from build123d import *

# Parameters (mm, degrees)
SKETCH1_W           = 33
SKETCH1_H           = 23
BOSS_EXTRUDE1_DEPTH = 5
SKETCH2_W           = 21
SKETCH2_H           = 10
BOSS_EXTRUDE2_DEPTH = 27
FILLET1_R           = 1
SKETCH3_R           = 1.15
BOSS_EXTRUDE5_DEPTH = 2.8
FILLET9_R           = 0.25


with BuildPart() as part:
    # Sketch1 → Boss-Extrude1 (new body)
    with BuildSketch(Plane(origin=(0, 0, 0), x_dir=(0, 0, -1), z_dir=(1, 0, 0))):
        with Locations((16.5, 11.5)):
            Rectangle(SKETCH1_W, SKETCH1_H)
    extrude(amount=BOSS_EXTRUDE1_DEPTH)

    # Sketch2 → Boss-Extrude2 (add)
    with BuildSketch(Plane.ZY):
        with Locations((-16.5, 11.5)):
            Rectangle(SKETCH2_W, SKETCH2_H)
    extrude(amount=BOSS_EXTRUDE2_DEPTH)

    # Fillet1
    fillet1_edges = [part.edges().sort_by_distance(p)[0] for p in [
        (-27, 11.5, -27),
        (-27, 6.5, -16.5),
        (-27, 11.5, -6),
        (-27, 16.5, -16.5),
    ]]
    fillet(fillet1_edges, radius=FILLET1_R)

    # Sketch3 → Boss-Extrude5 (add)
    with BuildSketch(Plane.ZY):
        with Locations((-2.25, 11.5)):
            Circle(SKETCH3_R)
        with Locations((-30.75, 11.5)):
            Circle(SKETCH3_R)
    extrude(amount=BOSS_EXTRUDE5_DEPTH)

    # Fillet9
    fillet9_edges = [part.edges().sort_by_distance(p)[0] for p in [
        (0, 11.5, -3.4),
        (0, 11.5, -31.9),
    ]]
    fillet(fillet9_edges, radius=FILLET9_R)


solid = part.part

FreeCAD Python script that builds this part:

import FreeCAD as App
import Part
import Sketcher

V = App.Vector
Q = App.Units.Quantity


def edges_at(feature, points):
    """Names of the edges that pass closest to the given points."""
    edges = feature.Shape.Edges
    near = lambda p: min(range(len(edges)), key=lambda i: edges[i].distToShape(Part.Vertex(*p))[0])
    return sorted({f"Edge{near(p) + 1}" for p in points})

doc = App.newDocument("Part")
body = doc.addObject("PartDesign::Body", "Body")

# Sketch on YZ plane
sketch1 = body.newObject("Sketcher::SketchObject", "Sketch")
sketch1.AttachmentSupport = (doc.getObject("YZ_Plane"), [""])
sketch1.MapMode = "FlatFace"
sketch1.addGeometry([
    Part.LineSegment(V(23, 0, 0), V(0, 0, 0)),
    Part.LineSegment(V(0, 0, 0), V(0, -33, 0)),
    Part.LineSegment(V(0, -33, 0), V(23, -33, 0)),
    Part.LineSegment(V(23, -33, 0), V(23, 0, 0)),
], False)
sketch1.addConstraint([
    Sketcher.Constraint("Coincident", 0, 2, 1, 1),
    Sketcher.Constraint("Coincident", 1, 2, 2, 1),
    Sketcher.Constraint("Coincident", 2, 2, 3, 1),
    Sketcher.Constraint("Coincident", 3, 2, 0, 1),
    Sketcher.Constraint("Horizontal", 0),
    Sketcher.Constraint("Vertical", 1),
    Sketcher.Constraint("Horizontal", 2),
    Sketcher.Constraint("Vertical", 3),
    Sketcher.Constraint("Coincident", 0, 2, -1, 1),
    Sketcher.Constraint("DistanceX", 0, 2, 0, 1, Q("23 mm")),
    Sketcher.Constraint("DistanceY", 1, 2, 1, 1, Q("33 mm")),
])
pad1 = body.newObject("PartDesign::Pad", "Pad")
pad1.Profile = sketch1
pad1.Length = 5

# Sketch on YZ plane
sketch2 = body.newObject("Sketcher::SketchObject", "Sketch001")
sketch2.AttachmentSupport = (doc.getObject("YZ_Plane"), [""])
sketch2.MapMode = "FlatFace"
sketch2.addGeometry([
    Part.LineSegment(V(16, -27, 0), V(6, -27, 0)),
    Part.LineSegment(V(6, -27, 0), V(6, -6, 0)),
    Part.LineSegment(V(6, -6, 0), V(16, -6, 0)),
    Part.LineSegment(V(16, -6, 0), V(16, -27, 0)),
], False)
sketch2.addConstraint([
    Sketcher.Constraint("Coincident", 0, 2, 1, 1),
    Sketcher.Constraint("Coincident", 1, 2, 2, 1),
    Sketcher.Constraint("Coincident", 2, 2, 3, 1),
    Sketcher.Constraint("Coincident", 3, 2, 0, 1),
    Sketcher.Constraint("Horizontal", 0),
    Sketcher.Constraint("Vertical", 1),
    Sketcher.Constraint("Horizontal", 2),
    Sketcher.Constraint("Vertical", 3),
    Sketcher.Constraint("DistanceX", 0, 2, 0, 1, Q("10 mm")),
    Sketcher.Constraint("DistanceY", 1, 1, 1, 2, Q("21 mm")),
    Sketcher.Constraint("DistanceY", 0, 2, -1, 1, Q("27 mm")),
    Sketcher.Constraint("DistanceX", -1, 1, 0, 2, Q("6.5 mm")),
])
pad2 = body.newObject("PartDesign::Pad", "Pad001")
pad2.Profile = sketch2
pad2.Length = 27
pad2.Reversed = True
doc.recompute()

fillet = body.newObject("PartDesign::Fillet", "Fillet")
fillet.Base = (pad2, edges_at(pad2, [
    (-27, 11.5, -27),
    (-27, 6.5, -16.5),
    (-27, 11.5, -6),
    (-27, 16.5, -16.5),
]))
fillet.Radius = 1

# Sketch on YZ plane
sketch3 = body.newObject("Sketcher::SketchObject", "Sketch002")
sketch3.AttachmentSupport = (doc.getObject("YZ_Plane"), [""])
sketch3.MapMode = "FlatFace"
sketch3.addGeometry([
    Part.Circle(V(11.5, -2.2, 0), V(0, 0, 1), 1.1),
    Part.Circle(V(11.5, -30.8, 0), V(0, 0, 1), 1.1),
], False)
sketch3.addConstraint([
    Sketcher.Constraint("Equal", 0, 1),
    Sketcher.Constraint("Vertical", 0, 3, 1, 3),
    Sketcher.Constraint("Diameter", 0, Q("2.3 mm")),
    Sketcher.Constraint("DistanceX", -1, 1, 0, 3, Q("11.5 mm")),
    Sketcher.Constraint("DistanceY", 1, 3, 0, 3, Q("28.5 mm")),
    Sketcher.Constraint("DistanceY", 0, 3, -1, 1, Q("2.25 mm")),
])
pad3 = body.newObject("PartDesign::Pad", "Pad002")
pad3.Profile = sketch3
pad3.Length = 2.8
pad3.Reversed = True
doc.recompute()

fillet2 = body.newObject("PartDesign::Fillet", "Fillet001")
fillet2.Base = (pad3, edges_at(pad3, [(0, 11.5, -3.4), (0, 11.5, -31.9)]))
fillet2.Radius = 0.25

doc.recompute()
